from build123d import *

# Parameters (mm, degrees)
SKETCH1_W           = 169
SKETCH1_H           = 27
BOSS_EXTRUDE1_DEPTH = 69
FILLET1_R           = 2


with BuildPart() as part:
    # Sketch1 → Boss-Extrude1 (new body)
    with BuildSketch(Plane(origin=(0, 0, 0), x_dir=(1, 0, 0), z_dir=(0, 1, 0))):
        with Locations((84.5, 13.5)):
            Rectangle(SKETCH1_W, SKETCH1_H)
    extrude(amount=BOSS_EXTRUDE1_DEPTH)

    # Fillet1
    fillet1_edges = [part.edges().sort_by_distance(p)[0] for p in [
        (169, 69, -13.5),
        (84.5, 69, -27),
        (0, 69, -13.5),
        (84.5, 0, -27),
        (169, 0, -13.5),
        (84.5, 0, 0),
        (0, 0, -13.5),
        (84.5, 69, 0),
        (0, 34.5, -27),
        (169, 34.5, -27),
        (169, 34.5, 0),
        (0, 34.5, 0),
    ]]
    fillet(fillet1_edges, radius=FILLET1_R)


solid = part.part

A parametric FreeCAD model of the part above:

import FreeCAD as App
import Part
import Sketcher

V = App.Vector
Q = App.Units.Quantity


def add_polygon(sketch, points):
    """Adds a closed chain of lines whose ends are joined by coincident constraints."""
    first, n = sketch.GeometryCount, len(points)
    for a, b in zip(points, points[1:] + points[:1]):
        sketch.addGeometry(Part.LineSegment(App.Vector(*a, 0), App.Vector(*b, 0)), False)
    for i in range(n):
        sketch.addConstraint(Sketcher.Constraint("Coincident", first + i, 2, first + (i + 1) % n, 1))

doc = App.newDocument("Part")
params = doc.addObject("Spreadsheet::Sheet", "Params")
for row, (alias, value) in enumerate([
    ("sketch1_width", "169 mm"),
    ("sketch1_height", "27 mm"),
    ("pad1_length", "69 mm"),
    ("fillet_radius", "2 mm"),
], start=1):
    params.set(f"A{row}", alias)
    params.set(f"B{row}", "=" + value)
    params.setAlias(f"B{row}", alias)

body = doc.addObject("PartDesign::Body", "Body")

# Sketch on XZ plane
sketch1 = doc.addObject("Sketcher::SketchObject", "Sketch")
body.addObject(sketch1)
sketch1.AttachmentSupport = (doc.XZ_Plane, [""])
sketch1.MapMode = "FlatFace"
add_polygon(sketch1, [(0, -27), (0, 0), (169, 0), (169, -27)])  # lines 0-3
sketch1.addConstraint([
    Sketcher.Constraint("Vertical", 0),
    Sketcher.Constraint("Horizontal", 1),
    Sketcher.Constraint("Vertical", 2),
    Sketcher.Constraint("Horizontal", 3),
    Sketcher.Constraint("Coincident", 0, 2, -1, 1),
    Sketcher.Constraint("DistanceX", 1, 1, 1, 2, Q("169 mm")),
    Sketcher.Constraint("DistanceY", 0, 1, 0, 2, Q("27 mm")),
])
sketch1.setExpression("Constraints[9]", "Params.sketch1_width")
sketch1.setExpression("Constraints[10]", "Params.sketch1_height")
pad1 = doc.addObject("PartDesign::Pad", "Pad")
body.addObject(pad1)
pad1.Profile = sketch1
pad1.setExpression("Length", "Params.pad1_length")
pad1.Reversed = True
doc.recompute()

fillet = doc.addObject("PartDesign::Fillet", "Fillet")
body.addObject(fillet)
fillet.Base = (pad1, ["Edge1"])
fillet.UseAllEdges = True
fillet.setExpression("Radius", "Params.fillet_radius")

doc.recompute()
